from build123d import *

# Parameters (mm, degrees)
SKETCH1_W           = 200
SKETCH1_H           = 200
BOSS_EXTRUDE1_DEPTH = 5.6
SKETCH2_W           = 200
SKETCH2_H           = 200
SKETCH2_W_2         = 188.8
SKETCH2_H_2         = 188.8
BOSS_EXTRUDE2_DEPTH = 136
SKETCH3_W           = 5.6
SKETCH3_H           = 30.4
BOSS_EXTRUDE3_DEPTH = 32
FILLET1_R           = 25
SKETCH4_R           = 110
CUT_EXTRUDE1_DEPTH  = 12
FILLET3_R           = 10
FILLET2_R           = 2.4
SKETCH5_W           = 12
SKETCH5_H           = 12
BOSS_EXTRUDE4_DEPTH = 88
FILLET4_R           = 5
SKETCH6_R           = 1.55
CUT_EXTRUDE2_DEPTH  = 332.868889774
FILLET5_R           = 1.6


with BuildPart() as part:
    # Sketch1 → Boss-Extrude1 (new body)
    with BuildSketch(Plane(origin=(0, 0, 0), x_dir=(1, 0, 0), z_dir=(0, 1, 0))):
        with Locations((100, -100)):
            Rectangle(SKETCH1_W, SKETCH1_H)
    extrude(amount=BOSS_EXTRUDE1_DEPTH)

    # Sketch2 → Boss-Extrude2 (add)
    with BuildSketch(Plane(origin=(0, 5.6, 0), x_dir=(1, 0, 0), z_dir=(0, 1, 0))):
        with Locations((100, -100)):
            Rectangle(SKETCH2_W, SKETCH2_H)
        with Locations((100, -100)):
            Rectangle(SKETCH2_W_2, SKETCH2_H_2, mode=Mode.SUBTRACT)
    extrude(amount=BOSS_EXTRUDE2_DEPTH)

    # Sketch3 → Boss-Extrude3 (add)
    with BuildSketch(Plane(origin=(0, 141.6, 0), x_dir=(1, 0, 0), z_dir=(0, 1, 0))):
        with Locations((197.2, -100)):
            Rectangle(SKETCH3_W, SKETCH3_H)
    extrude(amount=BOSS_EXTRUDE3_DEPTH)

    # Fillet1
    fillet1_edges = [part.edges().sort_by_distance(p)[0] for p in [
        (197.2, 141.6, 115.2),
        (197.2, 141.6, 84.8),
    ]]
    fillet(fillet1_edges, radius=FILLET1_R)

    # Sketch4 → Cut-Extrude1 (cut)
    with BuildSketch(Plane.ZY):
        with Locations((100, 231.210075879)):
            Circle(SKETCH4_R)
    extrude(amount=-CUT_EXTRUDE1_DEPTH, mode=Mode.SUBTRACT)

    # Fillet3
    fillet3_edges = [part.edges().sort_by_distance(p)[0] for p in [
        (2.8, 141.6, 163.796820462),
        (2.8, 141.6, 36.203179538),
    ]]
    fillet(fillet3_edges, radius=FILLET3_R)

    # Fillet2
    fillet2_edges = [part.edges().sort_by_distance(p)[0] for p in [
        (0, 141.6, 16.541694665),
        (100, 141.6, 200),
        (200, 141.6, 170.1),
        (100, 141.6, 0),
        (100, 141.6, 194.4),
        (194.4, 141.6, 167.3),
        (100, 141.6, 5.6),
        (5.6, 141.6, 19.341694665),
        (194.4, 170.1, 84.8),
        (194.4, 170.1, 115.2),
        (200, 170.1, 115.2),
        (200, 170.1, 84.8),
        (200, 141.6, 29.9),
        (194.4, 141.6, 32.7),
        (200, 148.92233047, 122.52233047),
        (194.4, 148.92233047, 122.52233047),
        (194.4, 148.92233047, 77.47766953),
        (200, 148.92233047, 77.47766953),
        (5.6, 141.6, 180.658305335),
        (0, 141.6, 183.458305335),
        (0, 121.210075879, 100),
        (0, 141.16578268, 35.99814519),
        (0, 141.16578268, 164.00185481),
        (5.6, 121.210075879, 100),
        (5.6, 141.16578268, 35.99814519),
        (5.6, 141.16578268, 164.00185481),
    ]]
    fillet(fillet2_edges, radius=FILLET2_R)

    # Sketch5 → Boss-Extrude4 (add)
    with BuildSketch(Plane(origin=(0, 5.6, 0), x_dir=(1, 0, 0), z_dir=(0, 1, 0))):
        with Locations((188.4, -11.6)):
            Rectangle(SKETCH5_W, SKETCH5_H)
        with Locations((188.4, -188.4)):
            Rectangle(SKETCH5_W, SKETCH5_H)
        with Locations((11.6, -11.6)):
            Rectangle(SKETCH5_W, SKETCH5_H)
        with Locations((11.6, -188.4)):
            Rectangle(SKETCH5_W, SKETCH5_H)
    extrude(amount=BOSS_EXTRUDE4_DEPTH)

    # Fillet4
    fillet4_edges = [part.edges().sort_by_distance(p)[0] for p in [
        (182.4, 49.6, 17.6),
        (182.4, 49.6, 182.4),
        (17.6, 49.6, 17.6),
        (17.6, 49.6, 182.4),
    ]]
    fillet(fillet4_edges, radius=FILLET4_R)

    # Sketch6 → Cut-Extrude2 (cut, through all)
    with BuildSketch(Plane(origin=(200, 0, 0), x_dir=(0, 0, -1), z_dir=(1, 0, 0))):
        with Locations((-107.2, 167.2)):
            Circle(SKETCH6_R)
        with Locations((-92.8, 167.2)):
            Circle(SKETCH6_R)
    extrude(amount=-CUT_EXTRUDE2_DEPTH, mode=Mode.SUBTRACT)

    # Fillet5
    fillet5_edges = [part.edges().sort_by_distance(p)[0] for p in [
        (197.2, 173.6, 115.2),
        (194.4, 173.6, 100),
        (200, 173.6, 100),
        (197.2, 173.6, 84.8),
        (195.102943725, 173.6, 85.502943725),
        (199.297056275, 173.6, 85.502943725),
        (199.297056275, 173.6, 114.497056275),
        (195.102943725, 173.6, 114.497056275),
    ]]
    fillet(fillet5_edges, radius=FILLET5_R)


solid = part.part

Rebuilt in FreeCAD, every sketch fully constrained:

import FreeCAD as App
import Part
import Sketcher
from FreeCAD import Vector


def edges_at(feature, points):
    """Names of the edges that pass closest to the given points."""
    edges = feature.Shape.Edges
    near = lambda p: min(range(len(edges)), key=lambda i: edges[i].distToShape(Part.Vertex(*p))[0])
    return sorted({f"Edge{near(p) + 1}" for p in points})

doc = App.newDocument("Part")
body = doc.addObject("PartDesign::Body", "Body")

# Sketch on XZ plane
sketch1 = body.newObject("Sketcher::SketchObject", "Sketch")
sketch1.AttachmentSupport = (doc.getObject("XZ_Plane"), [""])
sketch1.MapMode = "FlatFace"
sketch1.addGeometry([
    Part.LineSegment(Vector(0, 0, 0), Vector(0, 200, 0)),
    Part.LineSegment(Vector(0, 200, 0), Vector(200, 200, 0)),
    Part.LineSegment(Vector(200, 200, 0), Vector(200, 0, 0)),
    Part.LineSegment(Vector(200, 0, 0), Vector(0, 0, 0)),
], False)
sketch1.addConstraint([
    Sketcher.Constraint("Coincident", 0, 2, 1, 1),
    Sketcher.Constraint("Coincident", 1, 2, 2, 1),
    Sketcher.Constraint("Coincident", 2, 2, 3, 1),
    Sketcher.Constraint("Coincident", 3, 2, 0, 1),
    Sketcher.Constraint("Vertical", 0),
    Sketcher.Constraint("Horizontal", 1),
    Sketcher.Constraint("Vertical", 2),
    Sketcher.Constraint("Horizontal", 3),
    Sketcher.Constraint("Coincident", 3, 2, -1, 1),
    Sketcher.Constraint("Equal", 3, 0),
    Sketcher.Constraint("DistanceX", 1, 1, 1, 2, 200.0),
])
pad1 = body.newObject("PartDesign::Pad", "Pad")
pad1.Profile = sketch1
pad1.Length = 5.6
pad1.Reversed = True

# Sketch on XZ plane
sketch2 = body.newObject("Sketcher::SketchObject", "Sketch001")
sketch2.AttachmentSupport = (doc.getObject("XZ_Plane"), [""])
sketch2.MapMode = "FlatFace"
sketch2.AttachmentOffset = App.Placement(Vector(0, 0, -5.6), App.Rotation())
sketch2.addGeometry([
    Part.LineSegment(Vector(0, 0, 0), Vector(0, 200, 0)),  # 0
    Part.LineSegment(Vector(0, 200, 0), Vector(200, 200, 0)),  # 1
    Part.LineSegment(Vector(200, 200, 0), Vector(200, 0, 0)),  # 2
    Part.LineSegment(Vector(200, 0, 0), Vector(0, 0, 0)),  # 3
    Part.LineSegment(Vector(194, 194, 0), Vector(6, 194, 0)),  # 4
    Part.LineSegment(Vector(6, 194, 0), Vector(6, 6, 0)),  # 5
    Part.LineSegment(Vector(6, 6, 0), Vector(194, 6, 0)),  # 6
    Part.LineSegment(Vector(194, 6, 0), Vector(194, 194, 0)),  # 7
], False)
sketch2.addConstraint([
    Sketcher.Constraint("Coincident", 0, 2, 1, 1),
    Sketcher.Constraint("Coincident", 1, 2, 2, 1),
    Sketcher.Constraint("Coincident", 2, 2, 3, 1),
    Sketcher.Constraint("Coincident", 3, 2, 0, 1),
    Sketcher.Constraint("Coincident", 4, 2, 5, 1),
    Sketcher.Constraint("Coincident", 5, 2, 6, 1),
    Sketcher.Constraint("Coincident", 6, 2, 7, 1),
    Sketcher.Constraint("Coincident", 7, 2, 4, 1),
    Sketcher.Constraint("Vertical", 0),
    Sketcher.Constraint("Horizontal", 1),
    Sketcher.Constraint("Vertical", 2),
    Sketcher.Constraint("Horizontal", 3),
    Sketcher.Constraint("Horizontal", 4),
    Sketcher.Constraint("Vertical", 5),
    Sketcher.Constraint("Horizontal", 6),
    Sketcher.Constraint("Vertical", 7),
    Sketcher.Constraint("Coincident", 3, 2, -1, 1),
    Sketcher.Constraint("Equal", 3, 0),
    Sketcher.Constraint("Equal", 6, 5),
    Sketcher.Constraint("DistanceX", 1, 1, 1, 2, 200.0),
    Sketcher.Constraint("DistanceX", 4, 2, 4, 1, 188.8),
    Sketcher.Constraint("DistanceX", -1, 1, 4, 2, 5.6),
    Sketcher.Constraint("DistanceY", -1, 1, 4, 2, 194.4),
])
pad2 = body.newObject("PartDesign::Pad", "Pad001")
pad2.Profile = sketch2
pad2.Length = 136
pad2.Reversed = True

# Sketch on XZ plane
sketch3 = body.newObject("Sketcher::SketchObject", "Sketch002")
sketch3.AttachmentSupport = (doc.getObject("XZ_Plane"), [""])
sketch3.MapMode = "FlatFace"
sketch3.AttachmentOffset = App.Placement(Vector(0, 0, -141.6), App.Rotation())
sketch3.addGeometry([
    Part.LineSegment(Vector(194, 85, 0), Vector(194, 115, 0)),
    Part.LineSegment(Vector(194, 115, 0), Vector(200, 115, 0)),
    Part.LineSegment(Vector(200, 115, 0), Vector(200, 85, 0)),
    Part.LineSegment(Vector(200, 85, 0), Vector(194, 85, 0)),
], False)
sketch3.addConstraint([
    Sketcher.Constraint("Coincident", 0, 2, 1, 1),
    Sketcher.Constraint("Coincident", 1, 2, 2, 1),
    Sketcher.Constraint("Coincident", 2, 2, 3, 1),
    Sketcher.Constraint("Coincident", 3, 2, 0, 1),
    Sketcher.Constraint("Vertical", 0),
    Sketcher.Constraint("Horizontal", 1),
    Sketcher.Constraint("Vertical", 2),
    Sketcher.Constraint("Horizontal", 3),
    Sketcher.Constraint("DistanceX", 1, 1, 1, 2, 5.6),
    Sketcher.Constraint("DistanceY", 0, 1, 0, 2, 30.4),
    Sketcher.Constraint("DistanceX", -1, 1, 1, 2, 200.0),
    Sketcher.Constraint("DistanceY", -1, 1, 0, 2, 115.2),
])
pad3 = body.newObject("PartDesign::Pad", "Pad002")
pad3.Profile = sketch3
pad3.Length = 32
pad3.Reversed = True
doc.recompute()

fillet = body.newObject("PartDesign::Fillet", "Fillet")
fillet.Base = (pad3, edges_at(pad3, [(197.2, 141.6, 115.2), (197.2, 141.6, 84.8)]))
fillet.Radius = 25

# Sketch on YZ plane
sketch4 = body.newObject("Sketcher::SketchObject", "Sketch003")
sketch4.AttachmentSupport = (doc.getObject("YZ_Plane"), [""])
sketch4.MapMode = "FlatFace"
sketch4.addGeometry(Part.Circle(Vector(231, 100, 0), Vector(0, 0, 1), 110), False)
sketch4.addConstraint([
    Sketcher.Constraint("Diameter", 0, 220.0),
    Sketcher.Constraint("DistanceY", -1, 1, 0, 3, 100.0),
    Sketcher.Constraint("DistanceX", -1, 1, 0, 3, 231.210076),
])
pocket1 = body.newObject("PartDesign::Pocket", "Pocket")
pocket1.Profile = sketch4
pocket1.Length = 12
pocket1.Reversed = True
doc.recompute()

fillet2 = body.newObject("PartDesign::Fillet", "Fillet001")
fillet2.Base = (pocket1, edges_at(pocket1, [(2.8, 141.6, 163.797), (2.8, 141.6, 36.203)]))
fillet2.Radius = 10
doc.recompute()

fillet3 = body.newObject("PartDesign::Fillet", "Fillet002")
fillet3.Base = (fillet2, edges_at(fillet2, [
    (0, 141.6, 16.542),
    (100, 141.6, 200),
    (200, 141.6, 170.1),
    (100, 141.6, 0),
    (100, 141.6, 194.4),
    (194.4, 141.6, 167.3),
    (100, 141.6, 5.6),
    (5.6, 141.6, 19.342),
    (194.4, 170.1, 84.8),
    (194.4, 170.1, 115.2),
    (200, 170.1, 115.2),
    (200, 170.1, 84.8),
    (200, 141.6, 29.9),
    (194.4, 141.6, 32.7),
    (200, 148.922, 122.522),
    (194.4, 148.922, 122.522),
    (194.4, 148.922, 77.478),
    (200, 148.922, 77.478),
    (5.6, 141.6, 180.658),
    (0, 141.6, 183.458),
    (0, 121.21, 100),
    (0, 141.166, 35.998),
    (0, 141.166, 164.002),
    (5.6, 121.21, 100),
    (5.6, 141.166, 35.998),
    (5.6, 141.166, 164.002),
]))
fillet3.Radius = 2.4

# Sketch on XZ plane
sketch5 = body.newObject("Sketcher::SketchObject", "Sketch004")
sketch5.AttachmentSupport = (doc.getObject("XZ_Plane"), [""])
sketch5.MapMode = "FlatFace"
sketch5.AttachmentOffset = App.Placement(Vector(0, 0, -5.6), App.Rotation())
sketch5.addGeometry([
    Part.LineSegment(Vector(182, 6, 0), Vector(182, 18, 0)),  # 0
    Part.LineSegment(Vector(182, 18, 0), Vector(194, 18, 0)),  # 1
    Part.LineSegment(Vector(194, 18, 0), Vector(194, 6, 0)),  # 2
    Part.LineSegment(Vector(194, 6, 0), Vector(182, 6, 0)),  # 3
    Part.LineSegment(Vector(182, 182, 0), Vector(182, 194, 0)),  # 4
    Part.LineSegment(Vector(182, 194, 0), Vector(194, 194, 0)),  # 5
    Part.LineSegment(Vector(194, 194, 0), Vector(194, 182, 0)),  # 6
    Part.LineSegment(Vector(194, 182, 0), Vector(182, 182, 0)),  # 7
    Part.LineSegment(Vector(6, 6, 0), Vector(6, 18, 0)),  # 8
    Part.LineSegment(Vector(6, 18, 0), Vector(18, 18, 0)),  # 9
    Part.LineSegment(Vector(18, 18, 0), Vector(18, 6, 0)),  # 10
    Part.LineSegment(Vector(18, 6, 0), Vector(6, 6, 0)),  # 11
    Part.LineSegment(Vector(6, 182, 0), Vector(6, 194, 0)),  # 12
    Part.LineSegment(Vector(6, 194, 0), Vector(18, 194, 0)),  # 13
    Part.LineSegment(Vector(18, 194, 0), Vector(18, 182, 0)),  # 14
    Part.LineSegment(Vector(18, 182, 0), Vector(6, 182, 0)),  # 15
], False)
sketch5.addConstraint([
    Sketcher.Constraint("Coincident", 0, 2, 1, 1),
    Sketcher.Constraint("Coincident", 1, 2, 2, 1),
    Sketcher.Constraint("Coincident", 2, 2, 3, 1),
    Sketcher.Constraint("Coincident", 3, 2, 0, 1),
    Sketcher.Constraint("Coincident", 4, 2, 5, 1),
    Sketcher.Constraint("Coincident", 5, 2, 6, 1),
    Sketcher.Constraint("Coincident", 6, 2, 7, 1),
    Sketcher.Constraint("Coincident", 7, 2, 4, 1),
    Sketcher.Constraint("Coincident", 8, 2, 9, 1),
    Sketcher.Constraint("Coincident", 9, 2, 10, 1),
    Sketcher.Constraint("Coincident", 10, 2, 11, 1),
    Sketcher.Constraint("Coincident", 11, 2, 8, 1),
    Sketcher.Constraint("Coincident", 12, 2, 13, 1),
    Sketcher.Constraint("Coincident", 13, 2, 14, 1),
    Sketcher.Constraint("Coincident", 14, 2, 15, 1),
    Sketcher.Constraint("Coincident", 15, 2, 12, 1),
    Sketcher.Constraint("Vertical", 0),
    Sketcher.Constraint("Horizontal", 1),
    Sketcher.Constraint("Vertical", 2),
    Sketcher.Constraint("Horizontal", 3),
    Sketcher.Constraint("Vertical", 4),
    Sketcher.Constraint("Horizontal", 5),
    Sketcher.Constraint("Vertical", 6),
    Sketcher.Constraint("Horizontal", 7),
    Sketcher.Constraint("Vertical", 8),
    Sketcher.Constraint("Horizontal", 9),
    Sketcher.Constraint("Vertical", 10),
    Sketcher.Constraint("Horizontal", 11),
    Sketcher.Constraint("Vertical", 12),
    Sketcher.Constraint("Horizontal", 13),
    Sketcher.Constraint("Vertical", 14),
    Sketcher.Constraint("Horizontal", 15),
    Sketcher.Constraint("Horizontal", 1, 2, 8, 2),
    Sketcher.Constraint("Horizontal", 3, 2, 10, 2),
    Sketcher.Constraint("Horizontal", 5, 2, 12, 2),
    Sketcher.Constraint("Horizontal", 7, 2, 14, 2),
    Sketcher.Constraint("Vertical", 3, 2, 4, 2),
    Sketcher.Constraint("Vertical", 2, 2, 5, 2),
    Sketcher.Constraint("Vertical", 11, 2, 12, 2),
    Sketcher.Constraint("Vertical", 10, 2, 13, 2),
    Sketcher.Constraint("Equal", 7, 9),
    Sketcher.Constraint("Equal", 15, 0),
    Sketcher.Constraint("Equal", 2, 4),
    Sketcher.Constraint("DistanceX", 1, 1, 1, 2, 12.0),
    Sketcher.Constraint("DistanceX", -1, 1, 0, 2, 182.4),
    Sketcher.Constraint("DistanceY", -1, 1, 0, 2, 17.6),
    Sketcher.Constraint("DistanceY", -1, 1, 4, 2, 194.4),
    Sketcher.Constraint("DistanceX", -1, 1, 8, 2, 5.6),
])
pad4 = body.newObject("PartDesign::Pad", "Pad003")
pad4.Profile = sketch5
pad4.Length = 88
pad4.Reversed = True
doc.recompute()

fillet4 = body.newObject("PartDesign::Fillet", "Fillet003")
fillet4.Base = (pad4, edges_at(pad4, [
    (182.4, 49.6, 17.6),
    (182.4, 49.6, 182.4),
    (17.6, 49.6, 17.6),
    (17.6, 49.6, 182.4),
]))
fillet4.Radius = 5

# Sketch on YZ plane
sketch6 = body.newObject("Sketcher::SketchObject", "Sketch005")
sketch6.AttachmentSupport = (doc.getObject("YZ_Plane"), [""])
sketch6.MapMode = "FlatFace"
sketch6.AttachmentOffset = App.Placement(Vector(0, 0, 200), App.Rotation())
sketch6.addGeometry([
    Part.Circle(Vector(167.2, 107.2, 0), Vector(0, 0, 1), 1.6),
    Part.Circle(Vector(167.2, 92.8, 0), Vector(0, 0, 1), 1.6),
], False)
sketch6.addConstraint([
    Sketcher.Constraint("Equal", 0, 1),
    Sketcher.Constraint("Vertical", 0, 3, 1, 3),
    Sketcher.Constraint("Diameter", 0, 3.1),
    Sketcher.Constraint("DistanceX", -1, 1, 0, 3, 167.2),
    Sketcher.Constraint("DistanceY", -1, 1, 0, 3, 107.2),
    Sketcher.Constraint("DistanceY", -1, 1, 1, 3, 92.8),
])
pocket2 = body.newObject("PartDesign::Pocket", "Pocket001")
pocket2.Profile = sketch6
pocket2.Type = "ThroughAll"
doc.recompute()

fillet5 = body.newObject("PartDesign::Fillet", "Fillet004")
fillet5.Base = (pocket2, edges_at(pocket2, [
    (197.2, 173.6, 115.2),
    (194.4, 173.6, 100),
    (200, 173.6, 100),
    (197.2, 173.6, 84.8),
    (195.103, 173.6, 85.503),
    (199.297, 173.6, 85.503),
    (199.297, 173.6, 114.497),
    (195.103, 173.6, 114.497),
]))
fillet5.Radius = 1.6

doc.recompute()
